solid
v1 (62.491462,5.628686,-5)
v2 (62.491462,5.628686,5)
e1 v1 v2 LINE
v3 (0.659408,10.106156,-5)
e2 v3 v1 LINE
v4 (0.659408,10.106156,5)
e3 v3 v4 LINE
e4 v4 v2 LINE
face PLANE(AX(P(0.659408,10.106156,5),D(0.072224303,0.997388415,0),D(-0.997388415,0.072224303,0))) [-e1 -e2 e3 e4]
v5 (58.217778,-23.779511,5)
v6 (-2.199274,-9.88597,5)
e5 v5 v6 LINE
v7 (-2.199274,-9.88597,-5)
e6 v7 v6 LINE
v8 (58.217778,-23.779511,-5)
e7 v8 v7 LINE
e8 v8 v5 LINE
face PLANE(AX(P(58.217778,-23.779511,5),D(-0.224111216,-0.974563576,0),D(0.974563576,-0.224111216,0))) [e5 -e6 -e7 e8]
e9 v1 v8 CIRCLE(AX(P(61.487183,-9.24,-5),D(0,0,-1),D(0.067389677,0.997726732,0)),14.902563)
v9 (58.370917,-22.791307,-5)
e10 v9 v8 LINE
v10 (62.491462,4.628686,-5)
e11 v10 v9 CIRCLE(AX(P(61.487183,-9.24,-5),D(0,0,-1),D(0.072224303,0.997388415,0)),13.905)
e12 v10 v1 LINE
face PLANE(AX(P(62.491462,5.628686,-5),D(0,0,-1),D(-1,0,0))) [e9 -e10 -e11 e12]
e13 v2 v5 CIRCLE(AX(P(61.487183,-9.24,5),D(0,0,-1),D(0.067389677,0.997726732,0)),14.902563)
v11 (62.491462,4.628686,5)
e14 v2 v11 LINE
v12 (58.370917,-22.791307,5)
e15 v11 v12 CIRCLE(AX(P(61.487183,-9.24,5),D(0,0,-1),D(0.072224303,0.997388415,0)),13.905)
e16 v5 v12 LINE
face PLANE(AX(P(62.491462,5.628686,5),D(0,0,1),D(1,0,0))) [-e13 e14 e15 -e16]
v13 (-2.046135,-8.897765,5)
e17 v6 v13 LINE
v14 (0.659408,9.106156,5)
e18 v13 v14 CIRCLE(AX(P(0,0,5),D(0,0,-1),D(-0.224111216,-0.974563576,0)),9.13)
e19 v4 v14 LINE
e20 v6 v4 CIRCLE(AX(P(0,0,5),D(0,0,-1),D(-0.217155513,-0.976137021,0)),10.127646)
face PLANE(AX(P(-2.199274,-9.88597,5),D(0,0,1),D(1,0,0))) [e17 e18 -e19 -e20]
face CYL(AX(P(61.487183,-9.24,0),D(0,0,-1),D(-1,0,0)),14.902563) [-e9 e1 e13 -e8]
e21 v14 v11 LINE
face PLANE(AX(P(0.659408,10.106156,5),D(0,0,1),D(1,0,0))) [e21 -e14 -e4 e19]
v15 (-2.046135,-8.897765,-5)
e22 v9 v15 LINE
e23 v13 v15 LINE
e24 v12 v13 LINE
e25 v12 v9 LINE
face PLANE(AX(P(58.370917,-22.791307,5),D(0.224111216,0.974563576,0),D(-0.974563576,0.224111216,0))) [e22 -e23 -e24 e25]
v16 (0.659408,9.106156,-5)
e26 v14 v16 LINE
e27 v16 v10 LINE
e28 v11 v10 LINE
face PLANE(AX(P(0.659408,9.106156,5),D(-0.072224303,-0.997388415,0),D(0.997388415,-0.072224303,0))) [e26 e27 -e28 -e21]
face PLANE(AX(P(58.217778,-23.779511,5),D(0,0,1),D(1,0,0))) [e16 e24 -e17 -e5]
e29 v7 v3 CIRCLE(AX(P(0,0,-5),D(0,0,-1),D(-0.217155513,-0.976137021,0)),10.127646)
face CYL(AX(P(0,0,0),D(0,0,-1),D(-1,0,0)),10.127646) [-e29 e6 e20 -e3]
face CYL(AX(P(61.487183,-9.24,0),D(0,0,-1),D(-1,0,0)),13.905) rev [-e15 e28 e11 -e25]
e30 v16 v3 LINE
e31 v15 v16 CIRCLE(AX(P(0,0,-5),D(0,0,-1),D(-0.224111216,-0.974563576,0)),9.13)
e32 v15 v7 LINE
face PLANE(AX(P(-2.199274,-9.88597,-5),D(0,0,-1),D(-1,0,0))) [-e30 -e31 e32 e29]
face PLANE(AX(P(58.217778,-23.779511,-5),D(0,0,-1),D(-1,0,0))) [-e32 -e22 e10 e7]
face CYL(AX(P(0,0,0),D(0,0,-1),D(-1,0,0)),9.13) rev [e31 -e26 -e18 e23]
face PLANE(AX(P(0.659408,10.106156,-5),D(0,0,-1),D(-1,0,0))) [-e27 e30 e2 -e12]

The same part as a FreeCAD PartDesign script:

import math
import FreeCAD as App
import Part
import Sketcher


def add_polygon(sketch, points):
    """Adds a closed chain of lines whose ends are joined by coincident constraints."""
    first, n = sketch.GeometryCount, len(points)
    for a, b in zip(points, points[1:] + points[:1]):
        sketch.addGeometry(Part.LineSegment(App.Vector(*a, 0), App.Vector(*b, 0)), False)
    for i in range(n):
        sketch.addConstraint(Sketcher.Constraint("Coincident", first + i, 2, first + (i + 1) % n, 1))

doc = App.newDocument("Part")
body = doc.addObject("PartDesign::Body", "Body")

sketch1 = body.newObject("Sketcher::SketchObject", "Sketch")
sketch1.AttachmentSupport = (doc.getObject("YZ_Plane"), [""])
sketch1.MapMode = "FlatFace"
sketch1.AttachmentOffset = App.Placement(App.Vector(0, 0, 0.659408), App.Rotation())
add_polygon(sketch1, [(10.1, 5), (9.1, 5), (9.1, -5), (10.1, -5)])
sketch1.addConstraint(Sketcher.Constraint("Horizontal", 0))
sketch1.addConstraint(Sketcher.Constraint("Vertical", 1))
sketch1.addConstraint(Sketcher.Constraint("Horizontal", 2))
sketch1.addConstraint(Sketcher.Constraint("Vertical", 3))
sketch1.addConstraint(Sketcher.Constraint("DistanceX", 0, 2, 0, 1, 1.0))
sketch1.addConstraint(Sketcher.Constraint("DistanceY", 1, 2, 1, 1, 10.0))
sketch1.addConstraint(Sketcher.Constraint("DistanceY", -1, 1, 0, 2, 5.0))
sketch1.addConstraint(Sketcher.Constraint("DistanceX", -1, 1, 0, 2, 9.106156))

sketch2 = body.newObject("Sketcher::SketchObject", "Sketch001")
sketch2.AttachmentSupport = (doc.getObject("XY_Plane"), [""])
sketch2.MapMode = "FlatFace"
sketch2.addGeometry(Part.LineSegment(App.Vector(1, 9, 0), App.Vector(62, 5, 0)), False)
sketch2.addGeometry(Part.ArcOfCircle(Part.Circle(App.Vector(61, -9, 0), App.Vector(0, 0, 1), 14), math.radians(-103), math.radians(86)), False)
sketch2.addGeometry(Part.LineSegment(App.Vector(58, -23, 0), App.Vector(-2, -9, 0)), False)
sketch2.addGeometry(Part.ArcOfCircle(Part.Circle(App.Vector(0, 0, 0), App.Vector(0, 0, 1), 9), math.radians(86), math.radians(257)), False)
sketch2.addConstraint(Sketcher.Constraint("Tangent", 0, 2, 1, 2))
sketch2.addConstraint(Sketcher.Constraint("Tangent", 1, 1, 2, 1))
sketch2.addConstraint(Sketcher.Constraint("Tangent", 2, 2, 3, 2))
sketch2.addConstraint(Sketcher.Constraint("Tangent", 3, 1, 0, 1))
sketch2.addConstraint(Sketcher.Constraint("Coincident", 3, 3, -1, 1))
sketch2.addConstraint(Sketcher.Constraint("Radius", 3, 9.13))
sketch2.addConstraint(Sketcher.Constraint("Radius", 1, 13.905))
sketch2.addConstraint(Sketcher.Constraint("DistanceY", 1, 3, -1, 1, 9.24))
sketch2.addConstraint(Sketcher.Constraint("DistanceX", 1, 3, 0, 2, 1.004279))
doc.recompute()

additivepipe = body.newObject("PartDesign::AdditivePipe", "AdditivePipe")
additivepipe.Profile = sketch1
additivepipe.Spine = (sketch2, ["Edge1", "Edge2", "Edge3", "Edge4"])

doc.recompute()
